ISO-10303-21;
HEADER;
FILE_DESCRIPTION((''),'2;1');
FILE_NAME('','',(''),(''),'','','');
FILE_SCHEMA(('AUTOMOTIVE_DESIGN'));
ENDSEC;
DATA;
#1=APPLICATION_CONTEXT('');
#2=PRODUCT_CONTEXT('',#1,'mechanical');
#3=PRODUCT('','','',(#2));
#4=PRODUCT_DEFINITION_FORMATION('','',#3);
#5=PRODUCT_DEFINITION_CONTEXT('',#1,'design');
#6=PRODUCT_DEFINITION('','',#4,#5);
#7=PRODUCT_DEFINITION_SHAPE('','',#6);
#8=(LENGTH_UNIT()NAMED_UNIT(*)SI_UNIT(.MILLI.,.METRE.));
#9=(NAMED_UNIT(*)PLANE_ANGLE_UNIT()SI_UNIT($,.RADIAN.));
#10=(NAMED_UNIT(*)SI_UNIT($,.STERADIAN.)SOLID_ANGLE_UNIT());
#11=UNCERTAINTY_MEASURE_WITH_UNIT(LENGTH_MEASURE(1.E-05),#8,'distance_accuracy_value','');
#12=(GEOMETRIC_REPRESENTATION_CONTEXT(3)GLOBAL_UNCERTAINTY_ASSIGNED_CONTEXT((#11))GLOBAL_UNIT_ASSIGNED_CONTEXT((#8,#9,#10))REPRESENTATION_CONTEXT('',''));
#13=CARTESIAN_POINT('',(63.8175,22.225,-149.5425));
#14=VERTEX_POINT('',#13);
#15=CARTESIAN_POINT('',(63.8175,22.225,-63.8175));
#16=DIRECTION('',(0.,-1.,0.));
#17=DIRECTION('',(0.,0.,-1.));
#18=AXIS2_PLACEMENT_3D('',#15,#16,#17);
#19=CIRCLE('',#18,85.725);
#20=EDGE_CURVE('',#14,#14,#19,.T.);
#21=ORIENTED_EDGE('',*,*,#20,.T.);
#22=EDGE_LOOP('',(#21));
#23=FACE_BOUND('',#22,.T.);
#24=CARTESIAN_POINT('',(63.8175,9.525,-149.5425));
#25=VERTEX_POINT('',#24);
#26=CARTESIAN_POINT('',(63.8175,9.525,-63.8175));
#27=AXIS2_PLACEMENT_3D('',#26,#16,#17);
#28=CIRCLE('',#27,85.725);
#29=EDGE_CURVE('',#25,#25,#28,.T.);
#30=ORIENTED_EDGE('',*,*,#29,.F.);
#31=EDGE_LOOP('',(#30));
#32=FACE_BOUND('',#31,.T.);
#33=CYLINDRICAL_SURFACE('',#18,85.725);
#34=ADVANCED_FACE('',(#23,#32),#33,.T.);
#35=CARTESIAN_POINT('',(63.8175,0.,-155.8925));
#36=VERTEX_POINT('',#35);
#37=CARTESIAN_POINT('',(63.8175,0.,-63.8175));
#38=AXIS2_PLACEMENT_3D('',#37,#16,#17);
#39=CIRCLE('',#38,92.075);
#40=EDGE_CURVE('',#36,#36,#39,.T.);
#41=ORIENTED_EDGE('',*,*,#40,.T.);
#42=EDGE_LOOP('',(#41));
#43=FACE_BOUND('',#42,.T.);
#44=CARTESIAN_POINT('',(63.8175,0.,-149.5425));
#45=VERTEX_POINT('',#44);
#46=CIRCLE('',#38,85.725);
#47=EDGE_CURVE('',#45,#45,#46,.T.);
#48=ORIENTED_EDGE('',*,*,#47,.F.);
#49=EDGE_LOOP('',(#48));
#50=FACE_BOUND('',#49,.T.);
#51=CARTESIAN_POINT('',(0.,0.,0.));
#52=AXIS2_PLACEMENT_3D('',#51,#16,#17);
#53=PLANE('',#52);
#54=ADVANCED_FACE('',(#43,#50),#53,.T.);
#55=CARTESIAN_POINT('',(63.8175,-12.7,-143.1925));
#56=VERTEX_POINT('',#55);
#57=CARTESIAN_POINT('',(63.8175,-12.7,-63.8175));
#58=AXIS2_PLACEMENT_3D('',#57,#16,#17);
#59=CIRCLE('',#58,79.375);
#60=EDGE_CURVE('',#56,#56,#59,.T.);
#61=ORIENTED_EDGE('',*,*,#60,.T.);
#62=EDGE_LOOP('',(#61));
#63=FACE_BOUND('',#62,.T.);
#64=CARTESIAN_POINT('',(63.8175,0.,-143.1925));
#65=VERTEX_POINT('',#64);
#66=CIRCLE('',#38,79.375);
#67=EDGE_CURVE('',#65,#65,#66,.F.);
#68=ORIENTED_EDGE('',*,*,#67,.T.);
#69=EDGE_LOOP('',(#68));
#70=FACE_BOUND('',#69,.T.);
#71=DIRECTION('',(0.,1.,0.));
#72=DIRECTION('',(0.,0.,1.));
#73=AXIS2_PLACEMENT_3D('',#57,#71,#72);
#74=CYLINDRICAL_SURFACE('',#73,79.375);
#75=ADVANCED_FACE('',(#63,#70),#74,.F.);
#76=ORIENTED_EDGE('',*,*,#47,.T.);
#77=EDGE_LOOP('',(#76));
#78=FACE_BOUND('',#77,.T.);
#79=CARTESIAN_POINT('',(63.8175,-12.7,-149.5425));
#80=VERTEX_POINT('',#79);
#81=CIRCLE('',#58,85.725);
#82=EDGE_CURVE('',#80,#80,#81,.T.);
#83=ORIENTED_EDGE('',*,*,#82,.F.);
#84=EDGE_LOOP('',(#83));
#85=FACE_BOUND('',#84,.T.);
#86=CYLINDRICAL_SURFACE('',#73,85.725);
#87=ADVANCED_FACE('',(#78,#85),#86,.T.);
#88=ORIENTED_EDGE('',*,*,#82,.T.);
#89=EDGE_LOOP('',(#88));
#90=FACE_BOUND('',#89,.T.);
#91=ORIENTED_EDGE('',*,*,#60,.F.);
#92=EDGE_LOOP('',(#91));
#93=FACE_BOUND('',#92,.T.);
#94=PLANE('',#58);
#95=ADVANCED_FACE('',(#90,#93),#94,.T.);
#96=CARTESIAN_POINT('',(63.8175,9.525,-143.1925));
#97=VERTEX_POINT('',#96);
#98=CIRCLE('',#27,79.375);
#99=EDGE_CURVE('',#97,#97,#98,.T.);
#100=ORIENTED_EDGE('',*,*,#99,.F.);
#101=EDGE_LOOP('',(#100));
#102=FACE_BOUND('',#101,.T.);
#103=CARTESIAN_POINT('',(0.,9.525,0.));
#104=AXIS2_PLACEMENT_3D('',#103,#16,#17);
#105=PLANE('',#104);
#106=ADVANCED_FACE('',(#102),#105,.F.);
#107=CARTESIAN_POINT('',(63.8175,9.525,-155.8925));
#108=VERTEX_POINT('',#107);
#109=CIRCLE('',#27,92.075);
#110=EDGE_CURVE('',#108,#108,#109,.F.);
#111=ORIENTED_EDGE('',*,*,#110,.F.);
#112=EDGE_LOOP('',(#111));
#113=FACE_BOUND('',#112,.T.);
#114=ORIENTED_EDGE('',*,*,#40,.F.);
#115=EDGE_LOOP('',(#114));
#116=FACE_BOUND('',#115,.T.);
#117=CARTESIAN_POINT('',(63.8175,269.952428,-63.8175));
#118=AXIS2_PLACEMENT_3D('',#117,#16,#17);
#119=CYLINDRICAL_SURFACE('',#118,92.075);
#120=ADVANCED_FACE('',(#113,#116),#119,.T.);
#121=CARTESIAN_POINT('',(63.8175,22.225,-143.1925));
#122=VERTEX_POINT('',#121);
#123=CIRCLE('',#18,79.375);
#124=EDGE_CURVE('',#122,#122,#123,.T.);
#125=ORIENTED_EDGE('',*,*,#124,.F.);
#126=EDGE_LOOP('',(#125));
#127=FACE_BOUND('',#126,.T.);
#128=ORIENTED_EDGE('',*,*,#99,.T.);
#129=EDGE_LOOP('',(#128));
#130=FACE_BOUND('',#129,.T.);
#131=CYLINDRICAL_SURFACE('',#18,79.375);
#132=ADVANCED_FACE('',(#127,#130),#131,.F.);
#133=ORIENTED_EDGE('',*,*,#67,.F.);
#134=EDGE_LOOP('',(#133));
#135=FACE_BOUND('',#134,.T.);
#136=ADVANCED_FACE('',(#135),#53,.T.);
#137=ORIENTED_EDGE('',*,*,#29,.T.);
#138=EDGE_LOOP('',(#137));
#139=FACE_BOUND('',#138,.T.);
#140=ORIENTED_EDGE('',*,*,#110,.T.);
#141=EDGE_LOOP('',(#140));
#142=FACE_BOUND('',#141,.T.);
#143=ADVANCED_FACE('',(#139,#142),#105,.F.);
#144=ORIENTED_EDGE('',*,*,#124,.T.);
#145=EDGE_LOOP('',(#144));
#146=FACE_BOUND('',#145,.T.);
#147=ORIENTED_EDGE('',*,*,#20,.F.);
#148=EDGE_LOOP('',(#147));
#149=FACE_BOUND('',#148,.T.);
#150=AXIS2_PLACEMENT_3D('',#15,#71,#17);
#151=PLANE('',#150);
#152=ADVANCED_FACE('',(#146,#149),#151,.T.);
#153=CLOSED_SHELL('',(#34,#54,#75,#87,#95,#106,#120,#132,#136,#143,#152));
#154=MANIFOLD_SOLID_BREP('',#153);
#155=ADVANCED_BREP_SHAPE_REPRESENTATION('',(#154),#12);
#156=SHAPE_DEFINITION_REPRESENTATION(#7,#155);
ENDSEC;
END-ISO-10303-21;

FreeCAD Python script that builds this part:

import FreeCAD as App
import Part
import Sketcher
from FreeCAD import Vector
Q = App.Units.Quantity

doc = App.newDocument("Part")
params = doc.addObject("Spreadsheet::Sheet", "Params")
for row, (alias, value) in enumerate([
    ("sketch1_width", "5.025 in"),
    ("pad1_length", "0.375 in"),
    ("sketch2_diameter", "7.25 in"),
    ("pad2_length", "0.375 in"),
    ("sketch3_diameter", "6.75 in"),
    ("sketch3_diameter2", "6.25 in"),
    ("pad3_length", "0.5 in"),
], start=1):
    params.set(f"A{row}", alias)
    params.set(f"B{row}", "=" + value)
    params.setAlias(f"B{row}", alias)

body = doc.addObject("PartDesign::Body", "Body")

# Sketch on XZ plane
sketch1 = body.newObject("Sketcher::SketchObject", "Sketch")
sketch1.AttachmentSupport = (doc.getObject("XZ_Plane"), [""])
sketch1.MapMode = "FlatFace"
sketch1.addGeometry([
    Part.LineSegment(Vector(0, -128, 0), Vector(0, 0, 0)),
    Part.LineSegment(Vector(0, 0, 0), Vector(128, 0, 0)),
    Part.LineSegment(Vector(128, 0, 0), Vector(128, -128, 0)),
    Part.LineSegment(Vector(128, -128, 0), Vector(0, -128, 0)),
], False)
sketch1.addConstraint([
    Sketcher.Constraint("Coincident", 0, 2, 1, 1),
    Sketcher.Constraint("Coincident", 1, 2, 2, 1),
    Sketcher.Constraint("Coincident", 2, 2, 3, 1),
    Sketcher.Constraint("Coincident", 3, 2, 0, 1),
    Sketcher.Constraint("Vertical", 0),
    Sketcher.Constraint("Horizontal", 1),
    Sketcher.Constraint("Vertical", 2),
    Sketcher.Constraint("Horizontal", 3),
    Sketcher.Constraint("Coincident", 0, 2, -1, 1),
    Sketcher.Constraint("Equal", 3, 0),
    Sketcher.Constraint("DistanceX", 1, 1, 1, 2, Q("5.025 in")),
])
sketch1.setExpression("Constraints[10]", "Params.sketch1_width")
pad1 = body.newObject("PartDesign::Pad", "Pad")
pad1.Profile = sketch1
pad1.setExpression("Length", "Params.pad1_length")
pad1.Reversed = True

# Sketch on XZ plane
sketch2 = body.newObject("Sketcher::SketchObject", "Sketch001")
sketch2.AttachmentSupport = (doc.getObject("XZ_Plane"), [""])
sketch2.MapMode = "FlatFace"
sketch2.addGeometry(Part.Circle(Vector(64, -64, 0), Vector(0, 0, 1), 92), False)
sketch2.addConstraint([
    Sketcher.Constraint("Diameter", 0, Q("7.25 in")),
    Sketcher.Constraint("DistanceX", -1, 1, 0, 3, Q("2.5125 in")),
    Sketcher.Constraint("DistanceY", 0, 3, -1, 1, Q("2.5125 in")),
])
sketch2.setExpression("Constraints[0]", "Params.sketch2_diameter")
pad2 = body.newObject("PartDesign::Pad", "Pad001")
pad2.Profile = sketch2
pad2.setExpression("Length", "Params.pad2_length")
pad2.Reversed = True

# Sketch on XZ plane
sketch3 = body.newObject("Sketcher::SketchObject", "Sketch002")
sketch3.AttachmentSupport = (doc.getObject("XZ_Plane"), [""])
sketch3.MapMode = "FlatFace"
sketch3.addGeometry([
    Part.Circle(Vector(64, -64, 0), Vector(0, 0, 1), 86),
    Part.Circle(Vector(64, -64, 0), Vector(0, 0, 1), 79),
], False)
sketch3.addConstraint([
    Sketcher.Constraint("Coincident", 1, 3, 0, 3),
    Sketcher.Constraint("Diameter", 0, Q("6.75 in")),
    Sketcher.Constraint("Diameter", 1, Q("6.25 in")),
    Sketcher.Constraint("DistanceX", -1, 1, 0, 3, Q("2.5125 in")),
    Sketcher.Constraint("DistanceY", 0, 3, -1, 1, Q("2.5125 in")),
])
sketch3.setExpression("Constraints[1]", "Params.sketch3_diameter")
sketch3.setExpression("Constraints[2]", "Params.sketch3_diameter2")
pad3 = body.newObject("PartDesign::Pad", "Pad002")
pad3.Profile = sketch3
pad3.setExpression("Length", "Params.pad3_length")
doc.recompute()

datumplane = body.newObject("PartDesign::Plane", "DatumPlane")
datumplane.AttachmentSupport = (doc.getObject("XZ_Plane"), [""])
datumplane.MapMode = "FlatFace"
datumplane.AttachmentOffset = App.Placement(Vector(0, 0, -0.1875 * 25.4), App.Rotation())
mirrored = body.newObject("PartDesign::Mirrored", "Mirrored")
mirrored.Originals = [pad3]
mirrored.MirrorPlane = (datumplane, [""])
body.Tip = mirrored

doc.recompute()
